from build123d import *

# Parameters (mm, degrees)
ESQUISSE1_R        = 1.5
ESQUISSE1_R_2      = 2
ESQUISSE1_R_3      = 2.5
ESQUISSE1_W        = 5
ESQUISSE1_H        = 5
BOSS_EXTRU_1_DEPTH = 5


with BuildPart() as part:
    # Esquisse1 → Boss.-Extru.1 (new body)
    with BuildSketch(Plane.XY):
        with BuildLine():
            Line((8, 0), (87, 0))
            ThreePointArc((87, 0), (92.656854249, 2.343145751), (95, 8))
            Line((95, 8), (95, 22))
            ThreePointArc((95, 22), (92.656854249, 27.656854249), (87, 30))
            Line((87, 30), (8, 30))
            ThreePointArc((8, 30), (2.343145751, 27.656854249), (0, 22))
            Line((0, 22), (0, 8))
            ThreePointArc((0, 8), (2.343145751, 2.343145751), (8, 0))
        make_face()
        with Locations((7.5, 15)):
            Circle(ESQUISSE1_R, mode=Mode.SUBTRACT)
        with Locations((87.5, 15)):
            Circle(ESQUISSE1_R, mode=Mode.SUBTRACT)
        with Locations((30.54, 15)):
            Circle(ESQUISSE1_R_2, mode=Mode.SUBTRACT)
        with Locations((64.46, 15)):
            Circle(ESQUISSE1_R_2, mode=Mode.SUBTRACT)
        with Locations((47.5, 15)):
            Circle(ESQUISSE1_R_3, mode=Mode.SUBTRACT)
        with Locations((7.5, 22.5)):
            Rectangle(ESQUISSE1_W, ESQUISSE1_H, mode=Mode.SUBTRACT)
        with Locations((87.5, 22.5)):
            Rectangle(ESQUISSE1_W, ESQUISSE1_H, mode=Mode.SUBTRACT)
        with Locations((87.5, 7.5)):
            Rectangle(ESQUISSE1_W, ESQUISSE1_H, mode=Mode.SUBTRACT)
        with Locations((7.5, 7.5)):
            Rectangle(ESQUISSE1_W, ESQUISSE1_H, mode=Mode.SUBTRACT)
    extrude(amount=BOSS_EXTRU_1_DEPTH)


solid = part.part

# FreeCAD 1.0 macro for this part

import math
import FreeCAD as App
import Part
import Sketcher
from FreeCAD import Vector


def add_polygon(sketch, points):
    """Adds a closed chain of lines whose ends are joined by coincident constraints."""
    first, n = sketch.GeometryCount, len(points)
    for a, b in zip(points, points[1:] + points[:1]):
        sketch.addGeometry(Part.LineSegment(App.Vector(*a, 0), App.Vector(*b, 0)), False)
    for i in range(n):
        sketch.addConstraint(Sketcher.Constraint("Coincident", first + i, 2, first + (i + 1) % n, 1))

doc = App.newDocument("Part")
params = doc.addObject("Spreadsheet::Sheet", "Params")
for row, (alias, value) in enumerate([
    ("sketch1_diameter", "3 mm"),
    ("sketch1_diameter2", "4 mm"),
    ("sketch1_diameter3", "5 mm"),
    ("sketch1_radius", "8 mm"),
    ("sketch1_width", "79 mm"),
    ("pad1_length", "5 mm"),
], start=1):
    params.set(f"A{row}", alias)
    params.set(f"B{row}", "=" + value)
    params.setAlias(f"B{row}", alias)

body = doc.addObject("PartDesign::Body", "Body")

# Sketch on XY plane
sketch1 = body.newObject("Sketcher::SketchObject", "Sketch")
sketch1.AttachmentSupport = (doc.getObject("XY_Plane"), [""])
sketch1.MapMode = "FlatFace"
sketch1.addGeometry(Part.LineSegment(Vector(8, 0, 0), Vector(87, 0, 0)), False)  # 0
sketch1.addGeometry(Part.ArcOfCircle(Part.Circle(Vector(87, 8, 0), Vector(0, 0, 1), 8), math.radians(-90), math.radians(0)), False)  # 1
sketch1.addGeometry(Part.LineSegment(Vector(95, 8, 0), Vector(95, 22, 0)), False)  # 2
sketch1.addGeometry(Part.ArcOfCircle(Part.Circle(Vector(87, 22, 0), Vector(0, 0, 1), 8), math.radians(0), math.radians(90)), False)  # 3
sketch1.addGeometry(Part.LineSegment(Vector(87, 30, 0), Vector(8, 30, 0)), False)  # 4
sketch1.addGeometry(Part.ArcOfCircle(Part.Circle(Vector(8, 22, 0), Vector(0, 0, 1), 8), math.radians(90), math.radians(180)), False)  # 5
sketch1.addGeometry(Part.LineSegment(Vector(0, 22, 0), Vector(0, 8, 0)), False)  # 6
sketch1.addGeometry(Part.ArcOfCircle(Part.Circle(Vector(8, 8, 0), Vector(0, 0, 1), 8), math.radians(-180), math.radians(-90)), False)  # 7
add_polygon(sketch1, [(10, 5), (5, 5), (5, 10), (10, 10)])  # lines 8-11
add_polygon(sketch1, [(90, 5), (85, 5), (85, 10), (90, 10)])  # lines 12-15
sketch1.addGeometry(Part.Circle(Vector(7.5, 15, 0), Vector(0, 0, 1), 1.5), False)  # 16
sketch1.addGeometry(Part.Circle(Vector(30.5, 15, 0), Vector(0, 0, 1), 2), False)  # 17
add_polygon(sketch1, [(10, 20), (5, 20), (5, 25), (10, 25)])  # lines 18-21
sketch1.addGeometry(Part.Circle(Vector(47.5, 15, 0), Vector(0, 0, 1), 2.5), False)  # 22
sketch1.addGeometry(Part.Circle(Vector(64.5, 15, 0), Vector(0, 0, 1), 2), False)  # 23
sketch1.addGeometry(Part.Circle(Vector(87.5, 15, 0), Vector(0, 0, 1), 1.5), False)  # 24
add_polygon(sketch1, [(90, 20), (85, 20), (85, 25), (90, 25)])  # lines 25-28
sketch1.addConstraint([
    Sketcher.Constraint("Tangent", 0, 2, 1, 1),
    Sketcher.Constraint("Tangent", 1, 2, 2, 1),
    Sketcher.Constraint("Tangent", 2, 2, 3, 1),
    Sketcher.Constraint("Tangent", 3, 2, 4, 1),
    Sketcher.Constraint("Tangent", 4, 2, 5, 1),
    Sketcher.Constraint("Tangent", 5, 2, 6, 1),
    Sketcher.Constraint("Tangent", 6, 2, 7, 1),
    Sketcher.Constraint("Tangent", 7, 2, 0, 1),
    Sketcher.Constraint("Horizontal", 0),
    Sketcher.Constraint("Vertical", 2),
    Sketcher.Constraint("Horizontal", 4),
    Sketcher.Constraint("Vertical", 6),
    Sketcher.Constraint("Horizontal", 8),
    Sketcher.Constraint("Vertical", 9),
    Sketcher.Constraint("Horizontal", 10),
    Sketcher.Constraint("Vertical", 11),
    Sketcher.Constraint("Horizontal", 12),
    Sketcher.Constraint("Vertical", 13),
    Sketcher.Constraint("Horizontal", 14),
    Sketcher.Constraint("Vertical", 15),
    Sketcher.Constraint("Horizontal", 18),
    Sketcher.Constraint("Vertical", 19),
    Sketcher.Constraint("Horizontal", 20),
    Sketcher.Constraint("Vertical", 21),
    Sketcher.Constraint("Horizontal", 25),
    Sketcher.Constraint("Vertical", 26),
    Sketcher.Constraint("Horizontal", 27),
    Sketcher.Constraint("Vertical", 28),
    Sketcher.Constraint("Equal", 1, 3),
    Sketcher.Constraint("Equal", 3, 5),
    Sketcher.Constraint("Equal", 5, 7),
    Sketcher.Constraint("Equal", 17, 23),
    Sketcher.Constraint("Equal", 16, 24),
    Sketcher.Constraint("PointOnObject", 0, 2, -1),
    Sketcher.Constraint("PointOnObject", 5, 2, -2),
    Sketcher.Constraint("Horizontal", 16, 3, 17, 3),
    Sketcher.Constraint("Horizontal", 17, 3, 22, 3),
    Sketcher.Constraint("Horizontal", 22, 3, 23, 3),
    Sketcher.Constraint("Horizontal", 23, 3, 24, 3),
    Sketcher.Constraint("Horizontal", 11, 2, 12, 2),
    Sketcher.Constraint("Horizontal", 10, 2, 13, 2),
    Sketcher.Constraint("Horizontal", 21, 2, 25, 2),
    Sketcher.Constraint("Horizontal", 20, 2, 26, 2),
    Sketcher.Constraint("Vertical", 9, 2, 18, 2),
    Sketcher.Constraint("Vertical", 11, 2, 20, 2),
    Sketcher.Constraint("Vertical", 13, 2, 25, 2),
    Sketcher.Constraint("Vertical", 15, 2, 27, 2),
    Sketcher.Constraint("Equal", 10, 12),
    Sketcher.Constraint("Equal", 27, 9),
    Sketcher.Constraint("Equal", 15, 19),
    Sketcher.Constraint("Diameter", 16, 3.0),
    Sketcher.Constraint("Diameter", 17, 4.0),
    Sketcher.Constraint("Diameter", 22, 5.0),
    Sketcher.Constraint("Radius", 1, 8.0),
    Sketcher.Constraint("DistanceX", 0, 1, 0, 2, 79.0),
    Sketcher.Constraint("DistanceX", 8, 2, 8, 1, 5.0),
    Sketcher.Constraint("DistanceY", 2, 1, 2, 2, 14.0),
    Sketcher.Constraint("DistanceY", -1, 1, 16, 3, 15.0),
    Sketcher.Constraint("DistanceX", -1, 1, 8, 2, 5.0),
    Sketcher.Constraint("DistanceY", -1, 1, 8, 2, 5.0),
    Sketcher.Constraint("DistanceX", -1, 1, 12, 2, 85.0),
    Sketcher.Constraint("DistanceY", -1, 1, 18, 2, 20.0),
    Sketcher.Constraint("DistanceX", 16, 3, 22, 3, 40.0),
    Sketcher.Constraint("DistanceX", 22, 3, 24, 3, 40.0),
    Sketcher.Constraint("DistanceX", -1, 1, 16, 3, 7.5),
    Sketcher.Constraint("DistanceX", -1, 1, 17, 3, 30.54),
    Sketcher.Constraint("DistanceX", -1, 1, 23, 3, 64.46),
])
sketch1.setExpression("Constraints[66]", "Params.sketch1_diameter")
sketch1.setExpression("Constraints[67]", "Params.sketch1_diameter2")
sketch1.setExpression("Constraints[68]", "Params.sketch1_diameter3")
sketch1.setExpression("Constraints[69]", "Params.sketch1_radius")
sketch1.setExpression("Constraints[70]", "Params.sketch1_width")
pad1 = body.newObject("PartDesign::Pad", "Pad")
pad1.Profile = sketch1
pad1.setExpression("Length", "Params.pad1_length")

doc.recompute()
